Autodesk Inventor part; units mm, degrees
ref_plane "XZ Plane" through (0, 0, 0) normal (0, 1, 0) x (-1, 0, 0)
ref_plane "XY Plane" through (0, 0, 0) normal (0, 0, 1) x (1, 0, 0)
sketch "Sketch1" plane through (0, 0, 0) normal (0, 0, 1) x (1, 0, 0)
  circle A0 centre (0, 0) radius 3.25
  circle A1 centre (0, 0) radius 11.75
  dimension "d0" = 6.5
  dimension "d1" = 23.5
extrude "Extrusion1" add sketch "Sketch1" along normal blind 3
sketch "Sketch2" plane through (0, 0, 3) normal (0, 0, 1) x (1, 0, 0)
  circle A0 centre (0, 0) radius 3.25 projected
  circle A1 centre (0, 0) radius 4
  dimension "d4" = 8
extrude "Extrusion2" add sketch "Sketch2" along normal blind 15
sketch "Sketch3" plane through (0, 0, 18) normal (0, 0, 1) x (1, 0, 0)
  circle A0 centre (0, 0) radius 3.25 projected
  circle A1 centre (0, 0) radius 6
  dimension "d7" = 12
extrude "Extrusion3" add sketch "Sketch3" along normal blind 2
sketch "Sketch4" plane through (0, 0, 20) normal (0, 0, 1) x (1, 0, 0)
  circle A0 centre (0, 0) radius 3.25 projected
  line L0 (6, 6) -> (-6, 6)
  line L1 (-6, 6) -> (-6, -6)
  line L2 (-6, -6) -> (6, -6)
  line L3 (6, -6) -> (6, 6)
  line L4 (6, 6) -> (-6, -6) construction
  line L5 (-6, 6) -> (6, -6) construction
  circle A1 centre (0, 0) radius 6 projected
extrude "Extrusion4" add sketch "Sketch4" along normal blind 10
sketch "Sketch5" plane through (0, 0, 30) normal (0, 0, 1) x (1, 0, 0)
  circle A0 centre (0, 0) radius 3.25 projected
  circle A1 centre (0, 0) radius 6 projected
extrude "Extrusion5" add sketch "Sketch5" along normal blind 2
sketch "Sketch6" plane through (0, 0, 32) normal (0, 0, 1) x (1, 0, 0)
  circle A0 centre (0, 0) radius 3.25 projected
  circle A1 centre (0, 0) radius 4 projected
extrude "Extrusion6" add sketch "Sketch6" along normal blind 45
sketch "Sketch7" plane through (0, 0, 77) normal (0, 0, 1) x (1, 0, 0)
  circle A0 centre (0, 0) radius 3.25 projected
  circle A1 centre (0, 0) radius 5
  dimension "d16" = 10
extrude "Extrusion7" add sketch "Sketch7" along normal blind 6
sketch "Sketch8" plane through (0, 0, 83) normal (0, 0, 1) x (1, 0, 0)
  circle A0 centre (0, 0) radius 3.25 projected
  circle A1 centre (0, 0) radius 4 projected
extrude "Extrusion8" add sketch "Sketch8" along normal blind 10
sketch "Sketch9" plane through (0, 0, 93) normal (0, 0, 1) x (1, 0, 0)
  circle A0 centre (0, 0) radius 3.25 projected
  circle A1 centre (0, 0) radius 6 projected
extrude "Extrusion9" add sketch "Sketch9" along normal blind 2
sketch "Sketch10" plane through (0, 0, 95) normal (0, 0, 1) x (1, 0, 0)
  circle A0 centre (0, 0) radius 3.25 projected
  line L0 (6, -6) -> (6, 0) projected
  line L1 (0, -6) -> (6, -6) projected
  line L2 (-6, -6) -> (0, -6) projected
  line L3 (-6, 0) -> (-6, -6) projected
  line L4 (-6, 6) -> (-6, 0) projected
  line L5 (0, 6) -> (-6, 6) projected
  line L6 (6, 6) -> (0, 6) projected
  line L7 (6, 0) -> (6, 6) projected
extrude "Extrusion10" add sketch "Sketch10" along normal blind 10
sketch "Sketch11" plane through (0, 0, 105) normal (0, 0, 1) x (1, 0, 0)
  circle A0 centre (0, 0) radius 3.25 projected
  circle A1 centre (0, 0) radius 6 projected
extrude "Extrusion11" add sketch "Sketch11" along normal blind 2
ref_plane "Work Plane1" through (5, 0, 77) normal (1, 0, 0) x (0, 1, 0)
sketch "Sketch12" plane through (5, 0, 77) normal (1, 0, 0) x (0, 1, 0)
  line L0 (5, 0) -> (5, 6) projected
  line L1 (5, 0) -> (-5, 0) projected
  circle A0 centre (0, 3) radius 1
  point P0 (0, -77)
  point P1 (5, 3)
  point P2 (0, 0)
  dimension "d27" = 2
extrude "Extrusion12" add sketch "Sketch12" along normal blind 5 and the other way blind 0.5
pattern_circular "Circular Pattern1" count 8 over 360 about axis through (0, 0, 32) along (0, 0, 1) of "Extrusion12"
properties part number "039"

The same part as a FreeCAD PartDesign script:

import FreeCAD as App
import Part
import Sketcher
from FreeCAD import Vector

doc = App.newDocument("Part")
body = doc.addObject("PartDesign::Body", "Body")

# Sketch on XY plane
sketch1 = body.newObject("Sketcher::SketchObject", "Sketch")
sketch1.AttachmentSupport = (doc.getObject("XY_Plane"), [""])
sketch1.MapMode = "FlatFace"
sketch1.addGeometry([
    Part.Circle(Vector(0, 0, 0), Vector(0, 0, 1), 11.8),
    Part.Circle(Vector(0, 0, 0), Vector(0, 0, 1), 3.2),
], False)
sketch1.addConstraint([
    Sketcher.Constraint("Coincident", 0, 3, -1, 1),
    Sketcher.Constraint("Coincident", 1, 3, -1, 1),
    Sketcher.Constraint("Diameter", 0, 23.5),
    Sketcher.Constraint("Diameter", 1, 6.5),
])
pad1 = body.newObject("PartDesign::Pad", "Pad")
pad1.Profile = sketch1
pad1.Length = 3

# Sketch on XY plane
sketch2 = body.newObject("Sketcher::SketchObject", "Sketch001")
sketch2.AttachmentSupport = (doc.getObject("XY_Plane"), [""])
sketch2.MapMode = "FlatFace"
sketch2.AttachmentOffset = App.Placement(Vector(0, 0, 3), App.Rotation())
sketch2.addGeometry([
    Part.Circle(Vector(0, 0, 0), Vector(0, 0, 1), 4),
    Part.Circle(Vector(0, 0, 0), Vector(0, 0, 1), 3.2),
], False)
sketch2.addConstraint([
    Sketcher.Constraint("Coincident", 0, 3, -1, 1),
    Sketcher.Constraint("Coincident", 1, 3, -1, 1),
    Sketcher.Constraint("Diameter", 0, 8.0),
    Sketcher.Constraint("Diameter", 1, 6.5),
])
pad2 = body.newObject("PartDesign::Pad", "Pad001")
pad2.Profile = sketch2
pad2.Length = 15

# Sketch on XY plane
sketch3 = body.newObject("Sketcher::SketchObject", "Sketch002")
sketch3.AttachmentSupport = (doc.getObject("XY_Plane"), [""])
sketch3.MapMode = "FlatFace"
sketch3.AttachmentOffset = App.Placement(Vector(0, 0, 18), App.Rotation())
sketch3.addGeometry([
    Part.Circle(Vector(0, 0, 0), Vector(0, 0, 1), 6),
    Part.Circle(Vector(0, 0, 0), Vector(0, 0, 1), 3.2),
], False)
sketch3.addConstraint([
    Sketcher.Constraint("Coincident", 0, 3, -1, 1),
    Sketcher.Constraint("Coincident", 1, 3, -1, 1),
    Sketcher.Constraint("Diameter", 0, 12.0),
    Sketcher.Constraint("Diameter", 1, 6.5),
])
pad3 = body.newObject("PartDesign::Pad", "Pad002")
pad3.Profile = sketch3
pad3.Length = 2

# Sketch on XY plane
sketch4 = body.newObject("Sketcher::SketchObject", "Sketch003")
sketch4.AttachmentSupport = (doc.getObject("XY_Plane"), [""])
sketch4.MapMode = "FlatFace"
sketch4.AttachmentOffset = App.Placement(Vector(0, 0, 20), App.Rotation())
sketch4.addGeometry([
    Part.LineSegment(Vector(6, 6, 0), Vector(-6, 6, 0)),  # 0
    Part.LineSegment(Vector(-6, 6, 0), Vector(-6, -6, 0)),  # 1
    Part.LineSegment(Vector(-6, -6, 0), Vector(6, -6, 0)),  # 2
    Part.LineSegment(Vector(6, -6, 0), Vector(6, 6, 0)),  # 3
    Part.Circle(Vector(0, 0, 0), Vector(0, 0, 1), 3.2),  # 4
], False)
sketch4.addConstraint([
    Sketcher.Constraint("Coincident", 0, 2, 1, 1),
    Sketcher.Constraint("Coincident", 1, 2, 2, 1),
    Sketcher.Constraint("Coincident", 2, 2, 3, 1),
    Sketcher.Constraint("Coincident", 3, 2, 0, 1),
    Sketcher.Constraint("Horizontal", 0),
    Sketcher.Constraint("Vertical", 1),
    Sketcher.Constraint("Horizontal", 2),
    Sketcher.Constraint("Vertical", 3),
    Sketcher.Constraint("Coincident", 4, 3, -1, 1),
    Sketcher.Constraint("Symmetric", 0, 2, 2, 2, -1, 1),
    Sketcher.Constraint("Equal", 2, 1),
    Sketcher.Constraint("Diameter", 4, 6.5),
    Sketcher.Constraint("DistanceX", 0, 2, 0, 1, 12.0),
])
pad4 = body.newObject("PartDesign::Pad", "Pad003")
pad4.Profile = sketch4
pad4.Length = 10

# Sketch on XY plane
sketch5 = body.newObject("Sketcher::SketchObject", "Sketch004")
sketch5.AttachmentSupport = (doc.getObject("XY_Plane"), [""])
sketch5.MapMode = "FlatFace"
sketch5.AttachmentOffset = App.Placement(Vector(0, 0, 30), App.Rotation())
sketch5.addGeometry([
    Part.Circle(Vector(0, 0, 0), Vector(0, 0, 1), 6),
    Part.Circle(Vector(0, 0, 0), Vector(0, 0, 1), 3.2),
], False)
sketch5.addConstraint([
    Sketcher.Constraint("Coincident", 0, 3, -1, 1),
    Sketcher.Constraint("Coincident", 1, 3, -1, 1),
    Sketcher.Constraint("Diameter", 0, 12.0),
    Sketcher.Constraint("Diameter", 1, 6.5),
])
pad5 = body.newObject("PartDesign::Pad", "Pad004")
pad5.Profile = sketch5
pad5.Length = 2

# Sketch on XY plane
sketch6 = body.newObject("Sketcher::SketchObject", "Sketch005")
sketch6.AttachmentSupport = (doc.getObject("XY_Plane"), [""])
sketch6.MapMode = "FlatFace"
sketch6.AttachmentOffset = App.Placement(Vector(0, 0, 32), App.Rotation())
sketch6.addGeometry([
    Part.Circle(Vector(0, 0, 0), Vector(0, 0, 1), 4),
    Part.Circle(Vector(0, 0, 0), Vector(0, 0, 1), 3.2),
], False)
sketch6.addConstraint([
    Sketcher.Constraint("Coincident", 0, 3, -1, 1),
    Sketcher.Constraint("Coincident", 1, 3, -1, 1),
    Sketcher.Constraint("Diameter", 0, 8.0),
    Sketcher.Constraint("Diameter", 1, 6.5),
])
pad6 = body.newObject("PartDesign::Pad", "Pad005")
pad6.Profile = sketch6
pad6.Length = 45

# Sketch on XY plane
sketch7 = body.newObject("Sketcher::SketchObject", "Sketch006")
sketch7.AttachmentSupport = (doc.getObject("XY_Plane"), [""])
sketch7.MapMode = "FlatFace"
sketch7.AttachmentOffset = App.Placement(Vector(0, 0, 77), App.Rotation())
sketch7.addGeometry([
    Part.Circle(Vector(0, 0, 0), Vector(0, 0, 1), 5),
    Part.Circle(Vector(0, 0, 0), Vector(0, 0, 1), 3.2),
], False)
sketch7.addConstraint([
    Sketcher.Constraint("Coincident", 0, 3, -1, 1),
    Sketcher.Constraint("Coincident", 1, 3, -1, 1),
    Sketcher.Constraint("Diameter", 0, 10.0),
    Sketcher.Constraint("Diameter", 1, 6.5),
])
pad7 = body.newObject("PartDesign::Pad", "Pad006")
pad7.Profile = sketch7
pad7.Length = 6

# Sketch on XY plane
sketch8 = body.newObject("Sketcher::SketchObject", "Sketch007")
sketch8.AttachmentSupport = (doc.getObject("XY_Plane"), [""])
sketch8.MapMode = "FlatFace"
sketch8.AttachmentOffset = App.Placement(Vector(0, 0, 83), App.Rotation())
sketch8.addGeometry([
    Part.Circle(Vector(0, 0, 0), Vector(0, 0, 1), 4),
    Part.Circle(Vector(0, 0, 0), Vector(0, 0, 1), 3.2),
], False)
sketch8.addConstraint([
    Sketcher.Constraint("Coincident", 0, 3, -1, 1),
    Sketcher.Constraint("Coincident", 1, 3, -1, 1),
    Sketcher.Constraint("Diameter", 0, 8.0),
    Sketcher.Constraint("Diameter", 1, 6.5),
])
pad8 = body.newObject("PartDesign::Pad", "Pad007")
pad8.Profile = sketch8
pad8.Length = 10

# Sketch on XY plane
sketch9 = body.newObject("Sketcher::SketchObject", "Sketch008")
sketch9.AttachmentSupport = (doc.getObject("XY_Plane"), [""])
sketch9.MapMode = "FlatFace"
sketch9.AttachmentOffset = App.Placement(Vector(0, 0, 93), App.Rotation())
sketch9.addGeometry([
    Part.Circle(Vector(0, 0, 0), Vector(0, 0, 1), 6),
    Part.Circle(Vector(0, 0, 0), Vector(0, 0, 1), 3.2),
], False)
sketch9.addConstraint([
    Sketcher.Constraint("Coincident", 0, 3, -1, 1),
    Sketcher.Constraint("Coincident", 1, 3, -1, 1),
    Sketcher.Constraint("Diameter", 0, 12.0),
    Sketcher.Constraint("Diameter", 1, 6.5),
])
pad9 = body.newObject("PartDesign::Pad", "Pad008")
pad9.Profile = sketch9
pad9.Length = 2

# Sketch on XY plane
sketch10 = body.newObject("Sketcher::SketchObject", "Sketch009")
sketch10.AttachmentSupport = (doc.getObject("XY_Plane"), [""])
sketch10.MapMode = "FlatFace"
sketch10.AttachmentOffset = App.Placement(Vector(0, 0, 95), App.Rotation())
sketch10.addGeometry([
    Part.LineSegment(Vector(-6, -6, 0), Vector(6, -6, 0)),  # 0
    Part.LineSegment(Vector(6, -6, 0), Vector(6, 6, 0)),  # 1
    Part.LineSegment(Vector(6, 6, 0), Vector(-6, 6, 0)),  # 2
    Part.LineSegment(Vector(-6, 6, 0), Vector(-6, -6, 0)),  # 3
    Part.Circle(Vector(0, 0, 0), Vector(0, 0, 1), 3.2),  # 4
], False)
sketch10.addConstraint([
    Sketcher.Constraint("Coincident", 0, 2, 1, 1),
    Sketcher.Constraint("Coincident", 1, 2, 2, 1),
    Sketcher.Constraint("Coincident", 2, 2, 3, 1),
    Sketcher.Constraint("Coincident", 3, 2, 0, 1),
    Sketcher.Constraint("Horizontal", 0),
    Sketcher.Constraint("Vertical", 1),
    Sketcher.Constraint("Horizontal", 2),
    Sketcher.Constraint("Vertical", 3),
    Sketcher.Constraint("Coincident", 4, 3, -1, 1),
    Sketcher.Constraint("Symmetric", 0, 2, 2, 2, -1, 1),
    Sketcher.Constraint("Equal", 2, 1),
    Sketcher.Constraint("Diameter", 4, 6.5),
    Sketcher.Constraint("DistanceX", 0, 1, 0, 2, 12.0),
])
pad10 = body.newObject("PartDesign::Pad", "Pad009")
pad10.Profile = sketch10
pad10.Length = 10

# Sketch on XY plane
sketch11 = body.newObject("Sketcher::SketchObject", "Sketch010")
sketch11.AttachmentSupport = (doc.getObject("XY_Plane"), [""])
sketch11.MapMode = "FlatFace"
sketch11.AttachmentOffset = App.Placement(Vector(0, 0, 105), App.Rotation())
sketch11.addGeometry([
    Part.Circle(Vector(0, 0, 0), Vector(0, 0, 1), 6),
    Part.Circle(Vector(0, 0, 0), Vector(0, 0, 1), 3.2),
], False)
sketch11.addConstraint([
    Sketcher.Constraint("Coincident", 0, 3, -1, 1),
    Sketcher.Constraint("Coincident", 1, 3, -1, 1),
    Sketcher.Constraint("Diameter", 0, 12.0),
    Sketcher.Constraint("Diameter", 1, 6.5),
])
pad11 = body.newObject("PartDesign::Pad", "Pad010")
pad11.Profile = sketch11
pad11.Length = 2

# Sketch on YZ plane
sketch12 = body.newObject("Sketcher::SketchObject", "Sketch011")
sketch12.AttachmentSupport = (doc.getObject("YZ_Plane"), [""])
sketch12.MapMode = "FlatFace"
sketch12.AttachmentOffset = App.Placement(Vector(0, 0, 5), App.Rotation())
sketch12.addGeometry(Part.Circle(Vector(0, 80, 0), Vector(0, 0, 1), 1), False)
sketch12.addConstraint([
    Sketcher.Constraint("PointOnObject", 0, 3, -2),
    Sketcher.Constraint("Diameter", 0, 2.0),
    Sketcher.Constraint("DistanceY", -1, 1, 0, 3, 80.0),
])
pad12 = body.newObject("PartDesign::Pad", "Pad011")
pad12.Profile = sketch12
pad12.Type = "TwoLengths"
pad12.Length = 5
pad12.Length2 = 0.5
doc.recompute()

polarpattern = body.newObject("PartDesign::PolarPattern", "PolarPattern")
polarpattern.Originals = [pad12]
polarpattern.Axis = (doc.getObject("Z_Axis"), [""])
polarpattern.Angle = 360
polarpattern.Occurrences = 8
body.Tip = polarpattern

doc.recompute()
